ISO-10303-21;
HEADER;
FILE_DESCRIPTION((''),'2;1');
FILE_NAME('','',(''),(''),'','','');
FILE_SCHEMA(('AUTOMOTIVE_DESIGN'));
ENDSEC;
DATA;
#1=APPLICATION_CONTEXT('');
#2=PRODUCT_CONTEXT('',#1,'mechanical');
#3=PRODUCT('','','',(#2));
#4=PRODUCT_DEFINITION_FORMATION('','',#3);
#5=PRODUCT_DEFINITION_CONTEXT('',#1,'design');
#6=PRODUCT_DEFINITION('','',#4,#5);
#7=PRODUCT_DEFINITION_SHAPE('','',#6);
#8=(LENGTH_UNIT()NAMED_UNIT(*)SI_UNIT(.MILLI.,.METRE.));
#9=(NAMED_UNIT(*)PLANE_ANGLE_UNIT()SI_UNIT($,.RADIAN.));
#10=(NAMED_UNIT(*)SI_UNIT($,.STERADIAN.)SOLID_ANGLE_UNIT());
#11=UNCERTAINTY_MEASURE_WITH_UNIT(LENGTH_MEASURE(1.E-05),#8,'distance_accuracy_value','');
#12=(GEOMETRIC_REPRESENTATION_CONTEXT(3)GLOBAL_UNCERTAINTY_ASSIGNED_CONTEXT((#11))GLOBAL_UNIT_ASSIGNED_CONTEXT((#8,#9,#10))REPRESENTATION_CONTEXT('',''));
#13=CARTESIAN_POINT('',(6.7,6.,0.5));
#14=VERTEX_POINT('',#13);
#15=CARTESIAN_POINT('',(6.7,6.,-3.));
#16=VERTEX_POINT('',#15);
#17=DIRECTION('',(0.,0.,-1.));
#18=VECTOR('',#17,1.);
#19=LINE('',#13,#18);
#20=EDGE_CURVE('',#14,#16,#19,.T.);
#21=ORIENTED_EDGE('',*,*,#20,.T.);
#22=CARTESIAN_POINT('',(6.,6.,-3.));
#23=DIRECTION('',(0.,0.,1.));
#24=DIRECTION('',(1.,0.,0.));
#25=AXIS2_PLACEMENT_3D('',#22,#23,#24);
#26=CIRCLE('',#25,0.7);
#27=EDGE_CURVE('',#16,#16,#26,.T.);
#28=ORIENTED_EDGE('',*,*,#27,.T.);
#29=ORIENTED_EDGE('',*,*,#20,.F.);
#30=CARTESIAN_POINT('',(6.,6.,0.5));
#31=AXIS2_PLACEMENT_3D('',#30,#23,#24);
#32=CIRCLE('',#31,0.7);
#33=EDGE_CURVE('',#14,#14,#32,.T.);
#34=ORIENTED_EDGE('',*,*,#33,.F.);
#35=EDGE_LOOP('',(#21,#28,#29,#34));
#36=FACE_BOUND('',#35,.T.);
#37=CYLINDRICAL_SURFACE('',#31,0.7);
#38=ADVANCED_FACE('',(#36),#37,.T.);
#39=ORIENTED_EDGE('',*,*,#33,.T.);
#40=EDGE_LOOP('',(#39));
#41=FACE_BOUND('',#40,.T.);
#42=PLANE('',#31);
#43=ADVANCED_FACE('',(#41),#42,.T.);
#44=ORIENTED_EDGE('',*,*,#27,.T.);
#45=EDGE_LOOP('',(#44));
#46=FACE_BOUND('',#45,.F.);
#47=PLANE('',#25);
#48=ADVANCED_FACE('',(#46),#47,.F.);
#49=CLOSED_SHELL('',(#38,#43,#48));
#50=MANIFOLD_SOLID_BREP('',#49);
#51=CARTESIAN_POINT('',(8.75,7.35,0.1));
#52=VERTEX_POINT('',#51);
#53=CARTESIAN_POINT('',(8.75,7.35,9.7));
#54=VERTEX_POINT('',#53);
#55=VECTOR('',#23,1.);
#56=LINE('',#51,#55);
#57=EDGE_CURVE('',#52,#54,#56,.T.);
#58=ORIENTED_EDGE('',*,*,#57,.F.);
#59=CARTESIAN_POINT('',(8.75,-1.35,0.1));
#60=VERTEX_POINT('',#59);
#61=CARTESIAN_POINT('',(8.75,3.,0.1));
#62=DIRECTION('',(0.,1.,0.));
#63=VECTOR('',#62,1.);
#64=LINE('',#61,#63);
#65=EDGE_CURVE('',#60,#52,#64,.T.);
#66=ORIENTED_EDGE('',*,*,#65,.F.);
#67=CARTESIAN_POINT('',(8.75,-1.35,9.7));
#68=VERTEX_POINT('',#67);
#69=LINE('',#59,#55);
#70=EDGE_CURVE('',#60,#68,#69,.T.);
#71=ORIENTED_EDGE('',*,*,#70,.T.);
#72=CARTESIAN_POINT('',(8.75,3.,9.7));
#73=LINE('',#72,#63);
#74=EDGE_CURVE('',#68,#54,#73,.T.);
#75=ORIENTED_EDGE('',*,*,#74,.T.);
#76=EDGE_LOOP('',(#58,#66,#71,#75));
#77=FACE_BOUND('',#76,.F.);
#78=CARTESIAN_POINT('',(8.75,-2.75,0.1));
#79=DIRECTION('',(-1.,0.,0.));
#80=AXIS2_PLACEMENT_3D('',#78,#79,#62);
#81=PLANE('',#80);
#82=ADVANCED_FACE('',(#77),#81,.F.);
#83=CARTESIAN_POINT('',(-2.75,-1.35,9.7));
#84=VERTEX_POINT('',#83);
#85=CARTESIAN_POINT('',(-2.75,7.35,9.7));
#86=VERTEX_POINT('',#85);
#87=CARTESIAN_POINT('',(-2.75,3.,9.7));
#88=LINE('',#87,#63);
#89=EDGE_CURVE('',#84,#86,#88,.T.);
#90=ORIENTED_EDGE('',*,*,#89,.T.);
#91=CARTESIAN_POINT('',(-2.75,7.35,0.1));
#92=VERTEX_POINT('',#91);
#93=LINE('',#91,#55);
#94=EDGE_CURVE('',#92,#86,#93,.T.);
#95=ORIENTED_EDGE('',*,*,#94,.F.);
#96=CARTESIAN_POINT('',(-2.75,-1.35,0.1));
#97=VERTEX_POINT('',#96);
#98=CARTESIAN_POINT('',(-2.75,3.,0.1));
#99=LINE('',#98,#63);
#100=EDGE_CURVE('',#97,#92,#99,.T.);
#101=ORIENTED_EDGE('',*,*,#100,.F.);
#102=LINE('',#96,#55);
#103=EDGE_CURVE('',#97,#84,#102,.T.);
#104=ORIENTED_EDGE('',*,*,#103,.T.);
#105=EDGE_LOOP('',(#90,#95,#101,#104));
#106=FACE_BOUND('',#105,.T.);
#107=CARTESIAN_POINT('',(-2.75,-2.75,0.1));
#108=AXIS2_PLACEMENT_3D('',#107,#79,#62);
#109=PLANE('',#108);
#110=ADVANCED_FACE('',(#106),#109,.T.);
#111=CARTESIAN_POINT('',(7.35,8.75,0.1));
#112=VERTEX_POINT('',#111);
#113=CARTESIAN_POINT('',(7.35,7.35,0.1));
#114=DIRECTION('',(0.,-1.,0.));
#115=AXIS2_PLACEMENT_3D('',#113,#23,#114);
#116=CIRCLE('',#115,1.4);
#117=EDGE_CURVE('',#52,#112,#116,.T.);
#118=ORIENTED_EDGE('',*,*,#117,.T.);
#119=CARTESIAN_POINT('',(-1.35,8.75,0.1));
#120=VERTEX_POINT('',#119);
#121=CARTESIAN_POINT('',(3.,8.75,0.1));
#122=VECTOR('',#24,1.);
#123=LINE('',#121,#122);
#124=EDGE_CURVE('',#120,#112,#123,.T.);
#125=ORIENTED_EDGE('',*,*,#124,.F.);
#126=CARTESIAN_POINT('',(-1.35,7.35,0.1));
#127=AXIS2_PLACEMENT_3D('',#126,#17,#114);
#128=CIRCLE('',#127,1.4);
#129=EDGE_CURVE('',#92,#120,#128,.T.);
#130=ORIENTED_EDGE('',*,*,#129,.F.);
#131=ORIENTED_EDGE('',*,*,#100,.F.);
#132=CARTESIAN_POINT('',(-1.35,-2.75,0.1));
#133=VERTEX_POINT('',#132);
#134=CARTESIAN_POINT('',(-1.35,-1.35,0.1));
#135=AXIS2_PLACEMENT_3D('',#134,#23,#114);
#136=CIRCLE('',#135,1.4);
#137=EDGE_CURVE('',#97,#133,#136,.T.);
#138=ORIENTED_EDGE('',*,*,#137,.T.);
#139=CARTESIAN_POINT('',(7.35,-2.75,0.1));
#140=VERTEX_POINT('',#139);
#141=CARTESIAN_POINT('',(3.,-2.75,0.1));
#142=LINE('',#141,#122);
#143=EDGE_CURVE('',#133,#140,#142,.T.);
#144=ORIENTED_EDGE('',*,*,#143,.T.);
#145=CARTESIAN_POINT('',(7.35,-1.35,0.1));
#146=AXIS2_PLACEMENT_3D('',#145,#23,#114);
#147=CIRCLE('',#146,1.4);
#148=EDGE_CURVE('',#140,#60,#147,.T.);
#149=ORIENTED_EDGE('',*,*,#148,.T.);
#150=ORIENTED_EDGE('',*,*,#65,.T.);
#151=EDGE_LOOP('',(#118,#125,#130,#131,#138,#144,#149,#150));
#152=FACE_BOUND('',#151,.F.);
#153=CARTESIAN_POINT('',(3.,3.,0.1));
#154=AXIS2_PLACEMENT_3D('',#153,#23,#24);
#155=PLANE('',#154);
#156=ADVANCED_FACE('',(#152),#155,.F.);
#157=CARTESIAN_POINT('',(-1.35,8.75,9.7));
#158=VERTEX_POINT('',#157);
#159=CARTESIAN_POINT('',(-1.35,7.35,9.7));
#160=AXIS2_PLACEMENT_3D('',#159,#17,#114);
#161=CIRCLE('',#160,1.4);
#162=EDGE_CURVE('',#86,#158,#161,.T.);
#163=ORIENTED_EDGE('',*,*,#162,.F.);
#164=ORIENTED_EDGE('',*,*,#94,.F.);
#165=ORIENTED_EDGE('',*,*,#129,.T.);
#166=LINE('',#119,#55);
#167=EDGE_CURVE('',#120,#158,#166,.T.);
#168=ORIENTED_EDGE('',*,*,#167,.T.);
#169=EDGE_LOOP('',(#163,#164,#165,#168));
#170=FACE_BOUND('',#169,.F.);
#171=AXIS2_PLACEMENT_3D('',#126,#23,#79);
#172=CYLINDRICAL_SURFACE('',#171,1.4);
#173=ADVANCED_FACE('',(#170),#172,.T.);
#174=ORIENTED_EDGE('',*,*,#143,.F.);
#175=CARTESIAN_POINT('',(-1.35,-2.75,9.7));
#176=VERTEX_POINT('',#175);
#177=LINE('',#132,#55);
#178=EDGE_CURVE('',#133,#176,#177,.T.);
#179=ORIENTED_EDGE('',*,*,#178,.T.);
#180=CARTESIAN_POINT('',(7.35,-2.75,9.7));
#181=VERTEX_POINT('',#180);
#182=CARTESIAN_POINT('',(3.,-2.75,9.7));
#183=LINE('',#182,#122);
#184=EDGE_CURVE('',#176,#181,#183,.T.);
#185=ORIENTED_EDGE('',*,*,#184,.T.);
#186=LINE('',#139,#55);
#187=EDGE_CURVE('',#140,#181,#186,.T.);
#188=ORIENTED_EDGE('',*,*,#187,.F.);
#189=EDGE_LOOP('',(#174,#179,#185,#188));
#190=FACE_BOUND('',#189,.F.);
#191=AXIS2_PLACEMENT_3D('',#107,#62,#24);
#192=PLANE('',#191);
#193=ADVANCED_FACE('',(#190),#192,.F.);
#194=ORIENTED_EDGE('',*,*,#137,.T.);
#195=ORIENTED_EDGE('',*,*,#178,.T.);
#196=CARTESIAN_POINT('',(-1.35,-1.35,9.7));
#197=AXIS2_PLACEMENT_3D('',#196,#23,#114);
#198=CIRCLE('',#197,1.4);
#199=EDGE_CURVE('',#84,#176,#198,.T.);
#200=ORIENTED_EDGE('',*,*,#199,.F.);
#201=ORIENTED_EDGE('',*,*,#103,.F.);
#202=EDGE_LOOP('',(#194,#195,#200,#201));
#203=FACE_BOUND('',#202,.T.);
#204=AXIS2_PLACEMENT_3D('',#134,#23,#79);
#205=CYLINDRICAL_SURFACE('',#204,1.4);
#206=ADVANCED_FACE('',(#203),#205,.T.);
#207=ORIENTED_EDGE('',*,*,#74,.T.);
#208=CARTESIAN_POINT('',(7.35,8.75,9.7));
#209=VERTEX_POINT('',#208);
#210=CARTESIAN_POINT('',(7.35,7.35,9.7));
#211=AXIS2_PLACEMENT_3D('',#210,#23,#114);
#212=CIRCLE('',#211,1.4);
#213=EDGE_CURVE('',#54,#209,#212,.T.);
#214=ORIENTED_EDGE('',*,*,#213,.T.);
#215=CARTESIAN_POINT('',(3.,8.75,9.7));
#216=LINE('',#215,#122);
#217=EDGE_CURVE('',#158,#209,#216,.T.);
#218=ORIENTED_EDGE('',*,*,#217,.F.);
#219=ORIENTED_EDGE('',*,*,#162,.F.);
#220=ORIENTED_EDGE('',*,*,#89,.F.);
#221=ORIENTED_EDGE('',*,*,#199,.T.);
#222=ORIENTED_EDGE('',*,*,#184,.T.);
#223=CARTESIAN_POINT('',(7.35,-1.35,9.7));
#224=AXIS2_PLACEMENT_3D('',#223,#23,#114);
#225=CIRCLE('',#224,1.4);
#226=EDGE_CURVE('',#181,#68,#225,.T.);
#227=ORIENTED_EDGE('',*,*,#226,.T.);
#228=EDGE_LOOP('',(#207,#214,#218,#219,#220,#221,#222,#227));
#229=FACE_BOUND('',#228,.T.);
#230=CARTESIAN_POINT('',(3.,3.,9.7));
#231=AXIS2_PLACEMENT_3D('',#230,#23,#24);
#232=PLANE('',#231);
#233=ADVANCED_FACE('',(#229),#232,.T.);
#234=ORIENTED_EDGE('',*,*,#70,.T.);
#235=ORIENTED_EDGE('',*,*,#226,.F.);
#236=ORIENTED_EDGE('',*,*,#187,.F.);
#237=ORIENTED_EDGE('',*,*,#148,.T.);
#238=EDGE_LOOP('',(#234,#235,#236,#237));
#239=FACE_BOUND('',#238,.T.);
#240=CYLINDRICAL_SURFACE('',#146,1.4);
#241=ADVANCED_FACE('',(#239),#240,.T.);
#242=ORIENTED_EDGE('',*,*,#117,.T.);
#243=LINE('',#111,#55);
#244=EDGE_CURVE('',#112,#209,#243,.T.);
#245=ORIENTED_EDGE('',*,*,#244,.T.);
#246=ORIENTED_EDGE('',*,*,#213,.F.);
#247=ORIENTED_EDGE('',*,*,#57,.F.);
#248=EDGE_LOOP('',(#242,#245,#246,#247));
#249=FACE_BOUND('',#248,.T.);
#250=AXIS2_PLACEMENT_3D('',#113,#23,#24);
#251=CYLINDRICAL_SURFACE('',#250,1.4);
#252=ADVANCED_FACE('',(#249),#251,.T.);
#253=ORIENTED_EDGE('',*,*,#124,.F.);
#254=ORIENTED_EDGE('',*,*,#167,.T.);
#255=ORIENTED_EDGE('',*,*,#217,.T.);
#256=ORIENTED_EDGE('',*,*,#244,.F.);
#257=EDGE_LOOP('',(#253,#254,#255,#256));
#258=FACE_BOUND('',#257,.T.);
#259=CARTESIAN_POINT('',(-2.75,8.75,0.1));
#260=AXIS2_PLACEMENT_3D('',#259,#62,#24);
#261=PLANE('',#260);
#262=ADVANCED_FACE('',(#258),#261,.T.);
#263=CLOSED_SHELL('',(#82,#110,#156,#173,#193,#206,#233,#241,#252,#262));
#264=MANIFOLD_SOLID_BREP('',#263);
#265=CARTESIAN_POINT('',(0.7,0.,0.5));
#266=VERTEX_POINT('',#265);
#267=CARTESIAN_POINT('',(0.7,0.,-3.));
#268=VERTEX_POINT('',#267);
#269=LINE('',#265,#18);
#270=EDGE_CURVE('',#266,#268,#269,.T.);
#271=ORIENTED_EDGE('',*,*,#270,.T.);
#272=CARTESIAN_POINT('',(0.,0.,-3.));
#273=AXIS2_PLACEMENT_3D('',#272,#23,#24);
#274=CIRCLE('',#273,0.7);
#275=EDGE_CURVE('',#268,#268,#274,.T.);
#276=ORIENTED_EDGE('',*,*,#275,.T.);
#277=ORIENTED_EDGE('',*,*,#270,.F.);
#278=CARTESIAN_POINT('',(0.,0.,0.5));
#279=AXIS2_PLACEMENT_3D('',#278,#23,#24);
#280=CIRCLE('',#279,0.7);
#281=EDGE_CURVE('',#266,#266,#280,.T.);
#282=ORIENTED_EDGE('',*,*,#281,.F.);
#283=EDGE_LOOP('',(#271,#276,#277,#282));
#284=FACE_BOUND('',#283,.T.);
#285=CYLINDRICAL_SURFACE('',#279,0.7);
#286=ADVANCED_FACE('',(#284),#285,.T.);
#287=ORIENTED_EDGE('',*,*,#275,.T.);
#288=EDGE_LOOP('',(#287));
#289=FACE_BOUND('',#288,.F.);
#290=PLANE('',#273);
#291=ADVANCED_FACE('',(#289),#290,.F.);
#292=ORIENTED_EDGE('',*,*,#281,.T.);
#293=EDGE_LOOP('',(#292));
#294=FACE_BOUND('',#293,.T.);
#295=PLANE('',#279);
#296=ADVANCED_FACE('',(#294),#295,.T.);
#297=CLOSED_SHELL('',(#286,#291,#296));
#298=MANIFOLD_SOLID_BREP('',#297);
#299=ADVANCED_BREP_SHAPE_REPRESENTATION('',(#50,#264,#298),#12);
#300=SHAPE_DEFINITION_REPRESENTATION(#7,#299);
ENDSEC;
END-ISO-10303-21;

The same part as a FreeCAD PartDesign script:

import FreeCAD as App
import Part
import Sketcher

V = App.Vector


def edges_at(feature, points):
    """Names of the edges that pass closest to the given points."""
    edges = feature.Shape.Edges
    near = lambda p: min(range(len(edges)), key=lambda i: edges[i].distToShape(Part.Vertex(*p))[0])
    return sorted({f"Edge{near(p) + 1}" for p in points})


def add_polygon(sketch, points):
    """Adds a closed chain of lines whose ends are joined by coincident constraints."""
    first, n = sketch.GeometryCount, len(points)
    for a, b in zip(points, points[1:] + points[:1]):
        sketch.addGeometry(Part.LineSegment(App.Vector(*a, 0), App.Vector(*b, 0)), False)
    for i in range(n):
        sketch.addConstraint(Sketcher.Constraint("Coincident", first + i, 2, first + (i + 1) % n, 1))

doc = App.newDocument("Part")
body = doc.addObject("PartDesign::Body", "Body")
body.AllowCompound = True

# Sketch on XY plane
sketch1 = body.newObject("Sketcher::SketchObject", "Sketch")
sketch1.AttachmentSupport = (doc.getObject("XY_Plane"), [""])
sketch1.MapMode = "FlatFace"
sketch1.AttachmentOffset = App.Placement(V(0, 0, 0.5), App.Rotation())
sketch1.addGeometry(Part.Circle(V(0, 0, 0), V(0, 0, 1), 0.7), False)
sketch1.addGeometry(Part.Circle(V(6, 6, 0), V(0, 0, 1), 0.7), False)
sketch1.addConstraint(Sketcher.Constraint("Coincident", 0, 3, -1, 1))
sketch1.addConstraint(Sketcher.Constraint("Equal", 0, 1))
sketch1.addConstraint(Sketcher.Constraint("Diameter", 0, 1.4))
sketch1.addConstraint(Sketcher.Constraint("DistanceX", -1, 1, 1, 3, 6.0))
sketch1.addConstraint(Sketcher.Constraint("DistanceY", -1, 1, 1, 3, 6.0))
pad1 = body.newObject("PartDesign::Pad", "Pad")
pad1.Profile = sketch1
pad1.Length = 3.5
pad1.Reversed = True
body2 = doc.addObject("PartDesign::Body", "Body001")

# Sketch on XY plane
sketch2 = body2.newObject("Sketcher::SketchObject", "Sketch001")
sketch2.AttachmentSupport = (doc.getObject("XY_Plane001"), [""])
sketch2.MapMode = "FlatFace"
sketch2.AttachmentOffset = App.Placement(V(0, 0, 0.1), App.Rotation())
add_polygon(sketch2, [(-3, 9), (-3, -3), (9, -3), (9, 9)])  # lines 0-3
sketch2.addConstraint(Sketcher.Constraint("Vertical", 0))
sketch2.addConstraint(Sketcher.Constraint("Horizontal", 1))
sketch2.addConstraint(Sketcher.Constraint("Vertical", 2))
sketch2.addConstraint(Sketcher.Constraint("Horizontal", 3))
sketch2.addConstraint(Sketcher.Constraint("Equal", 3, 0))
sketch2.addConstraint(Sketcher.Constraint("DistanceX", 1, 1, 1, 2, 11.5))
sketch2.addConstraint(Sketcher.Constraint("DistanceX", 0, 2, -1, 1, 2.75))
sketch2.addConstraint(Sketcher.Constraint("DistanceY", 0, 2, -1, 1, 2.75))
pad2 = body2.newObject("PartDesign::Pad", "Pad001")
pad2.Profile = sketch2
pad2.Length = 9.6
doc.recompute()

fillet = body2.newObject("PartDesign::Fillet", "Fillet")
fillet.Base = (pad2, edges_at(pad2, [
    (8.75, -2.75, 4.9),
    (8.75, 8.75, 4.9),
    (-2.75, -2.75, 4.9),
    (-2.75, 8.75, 4.9),
]))
fillet.Radius = 1.4

doc.recompute()
